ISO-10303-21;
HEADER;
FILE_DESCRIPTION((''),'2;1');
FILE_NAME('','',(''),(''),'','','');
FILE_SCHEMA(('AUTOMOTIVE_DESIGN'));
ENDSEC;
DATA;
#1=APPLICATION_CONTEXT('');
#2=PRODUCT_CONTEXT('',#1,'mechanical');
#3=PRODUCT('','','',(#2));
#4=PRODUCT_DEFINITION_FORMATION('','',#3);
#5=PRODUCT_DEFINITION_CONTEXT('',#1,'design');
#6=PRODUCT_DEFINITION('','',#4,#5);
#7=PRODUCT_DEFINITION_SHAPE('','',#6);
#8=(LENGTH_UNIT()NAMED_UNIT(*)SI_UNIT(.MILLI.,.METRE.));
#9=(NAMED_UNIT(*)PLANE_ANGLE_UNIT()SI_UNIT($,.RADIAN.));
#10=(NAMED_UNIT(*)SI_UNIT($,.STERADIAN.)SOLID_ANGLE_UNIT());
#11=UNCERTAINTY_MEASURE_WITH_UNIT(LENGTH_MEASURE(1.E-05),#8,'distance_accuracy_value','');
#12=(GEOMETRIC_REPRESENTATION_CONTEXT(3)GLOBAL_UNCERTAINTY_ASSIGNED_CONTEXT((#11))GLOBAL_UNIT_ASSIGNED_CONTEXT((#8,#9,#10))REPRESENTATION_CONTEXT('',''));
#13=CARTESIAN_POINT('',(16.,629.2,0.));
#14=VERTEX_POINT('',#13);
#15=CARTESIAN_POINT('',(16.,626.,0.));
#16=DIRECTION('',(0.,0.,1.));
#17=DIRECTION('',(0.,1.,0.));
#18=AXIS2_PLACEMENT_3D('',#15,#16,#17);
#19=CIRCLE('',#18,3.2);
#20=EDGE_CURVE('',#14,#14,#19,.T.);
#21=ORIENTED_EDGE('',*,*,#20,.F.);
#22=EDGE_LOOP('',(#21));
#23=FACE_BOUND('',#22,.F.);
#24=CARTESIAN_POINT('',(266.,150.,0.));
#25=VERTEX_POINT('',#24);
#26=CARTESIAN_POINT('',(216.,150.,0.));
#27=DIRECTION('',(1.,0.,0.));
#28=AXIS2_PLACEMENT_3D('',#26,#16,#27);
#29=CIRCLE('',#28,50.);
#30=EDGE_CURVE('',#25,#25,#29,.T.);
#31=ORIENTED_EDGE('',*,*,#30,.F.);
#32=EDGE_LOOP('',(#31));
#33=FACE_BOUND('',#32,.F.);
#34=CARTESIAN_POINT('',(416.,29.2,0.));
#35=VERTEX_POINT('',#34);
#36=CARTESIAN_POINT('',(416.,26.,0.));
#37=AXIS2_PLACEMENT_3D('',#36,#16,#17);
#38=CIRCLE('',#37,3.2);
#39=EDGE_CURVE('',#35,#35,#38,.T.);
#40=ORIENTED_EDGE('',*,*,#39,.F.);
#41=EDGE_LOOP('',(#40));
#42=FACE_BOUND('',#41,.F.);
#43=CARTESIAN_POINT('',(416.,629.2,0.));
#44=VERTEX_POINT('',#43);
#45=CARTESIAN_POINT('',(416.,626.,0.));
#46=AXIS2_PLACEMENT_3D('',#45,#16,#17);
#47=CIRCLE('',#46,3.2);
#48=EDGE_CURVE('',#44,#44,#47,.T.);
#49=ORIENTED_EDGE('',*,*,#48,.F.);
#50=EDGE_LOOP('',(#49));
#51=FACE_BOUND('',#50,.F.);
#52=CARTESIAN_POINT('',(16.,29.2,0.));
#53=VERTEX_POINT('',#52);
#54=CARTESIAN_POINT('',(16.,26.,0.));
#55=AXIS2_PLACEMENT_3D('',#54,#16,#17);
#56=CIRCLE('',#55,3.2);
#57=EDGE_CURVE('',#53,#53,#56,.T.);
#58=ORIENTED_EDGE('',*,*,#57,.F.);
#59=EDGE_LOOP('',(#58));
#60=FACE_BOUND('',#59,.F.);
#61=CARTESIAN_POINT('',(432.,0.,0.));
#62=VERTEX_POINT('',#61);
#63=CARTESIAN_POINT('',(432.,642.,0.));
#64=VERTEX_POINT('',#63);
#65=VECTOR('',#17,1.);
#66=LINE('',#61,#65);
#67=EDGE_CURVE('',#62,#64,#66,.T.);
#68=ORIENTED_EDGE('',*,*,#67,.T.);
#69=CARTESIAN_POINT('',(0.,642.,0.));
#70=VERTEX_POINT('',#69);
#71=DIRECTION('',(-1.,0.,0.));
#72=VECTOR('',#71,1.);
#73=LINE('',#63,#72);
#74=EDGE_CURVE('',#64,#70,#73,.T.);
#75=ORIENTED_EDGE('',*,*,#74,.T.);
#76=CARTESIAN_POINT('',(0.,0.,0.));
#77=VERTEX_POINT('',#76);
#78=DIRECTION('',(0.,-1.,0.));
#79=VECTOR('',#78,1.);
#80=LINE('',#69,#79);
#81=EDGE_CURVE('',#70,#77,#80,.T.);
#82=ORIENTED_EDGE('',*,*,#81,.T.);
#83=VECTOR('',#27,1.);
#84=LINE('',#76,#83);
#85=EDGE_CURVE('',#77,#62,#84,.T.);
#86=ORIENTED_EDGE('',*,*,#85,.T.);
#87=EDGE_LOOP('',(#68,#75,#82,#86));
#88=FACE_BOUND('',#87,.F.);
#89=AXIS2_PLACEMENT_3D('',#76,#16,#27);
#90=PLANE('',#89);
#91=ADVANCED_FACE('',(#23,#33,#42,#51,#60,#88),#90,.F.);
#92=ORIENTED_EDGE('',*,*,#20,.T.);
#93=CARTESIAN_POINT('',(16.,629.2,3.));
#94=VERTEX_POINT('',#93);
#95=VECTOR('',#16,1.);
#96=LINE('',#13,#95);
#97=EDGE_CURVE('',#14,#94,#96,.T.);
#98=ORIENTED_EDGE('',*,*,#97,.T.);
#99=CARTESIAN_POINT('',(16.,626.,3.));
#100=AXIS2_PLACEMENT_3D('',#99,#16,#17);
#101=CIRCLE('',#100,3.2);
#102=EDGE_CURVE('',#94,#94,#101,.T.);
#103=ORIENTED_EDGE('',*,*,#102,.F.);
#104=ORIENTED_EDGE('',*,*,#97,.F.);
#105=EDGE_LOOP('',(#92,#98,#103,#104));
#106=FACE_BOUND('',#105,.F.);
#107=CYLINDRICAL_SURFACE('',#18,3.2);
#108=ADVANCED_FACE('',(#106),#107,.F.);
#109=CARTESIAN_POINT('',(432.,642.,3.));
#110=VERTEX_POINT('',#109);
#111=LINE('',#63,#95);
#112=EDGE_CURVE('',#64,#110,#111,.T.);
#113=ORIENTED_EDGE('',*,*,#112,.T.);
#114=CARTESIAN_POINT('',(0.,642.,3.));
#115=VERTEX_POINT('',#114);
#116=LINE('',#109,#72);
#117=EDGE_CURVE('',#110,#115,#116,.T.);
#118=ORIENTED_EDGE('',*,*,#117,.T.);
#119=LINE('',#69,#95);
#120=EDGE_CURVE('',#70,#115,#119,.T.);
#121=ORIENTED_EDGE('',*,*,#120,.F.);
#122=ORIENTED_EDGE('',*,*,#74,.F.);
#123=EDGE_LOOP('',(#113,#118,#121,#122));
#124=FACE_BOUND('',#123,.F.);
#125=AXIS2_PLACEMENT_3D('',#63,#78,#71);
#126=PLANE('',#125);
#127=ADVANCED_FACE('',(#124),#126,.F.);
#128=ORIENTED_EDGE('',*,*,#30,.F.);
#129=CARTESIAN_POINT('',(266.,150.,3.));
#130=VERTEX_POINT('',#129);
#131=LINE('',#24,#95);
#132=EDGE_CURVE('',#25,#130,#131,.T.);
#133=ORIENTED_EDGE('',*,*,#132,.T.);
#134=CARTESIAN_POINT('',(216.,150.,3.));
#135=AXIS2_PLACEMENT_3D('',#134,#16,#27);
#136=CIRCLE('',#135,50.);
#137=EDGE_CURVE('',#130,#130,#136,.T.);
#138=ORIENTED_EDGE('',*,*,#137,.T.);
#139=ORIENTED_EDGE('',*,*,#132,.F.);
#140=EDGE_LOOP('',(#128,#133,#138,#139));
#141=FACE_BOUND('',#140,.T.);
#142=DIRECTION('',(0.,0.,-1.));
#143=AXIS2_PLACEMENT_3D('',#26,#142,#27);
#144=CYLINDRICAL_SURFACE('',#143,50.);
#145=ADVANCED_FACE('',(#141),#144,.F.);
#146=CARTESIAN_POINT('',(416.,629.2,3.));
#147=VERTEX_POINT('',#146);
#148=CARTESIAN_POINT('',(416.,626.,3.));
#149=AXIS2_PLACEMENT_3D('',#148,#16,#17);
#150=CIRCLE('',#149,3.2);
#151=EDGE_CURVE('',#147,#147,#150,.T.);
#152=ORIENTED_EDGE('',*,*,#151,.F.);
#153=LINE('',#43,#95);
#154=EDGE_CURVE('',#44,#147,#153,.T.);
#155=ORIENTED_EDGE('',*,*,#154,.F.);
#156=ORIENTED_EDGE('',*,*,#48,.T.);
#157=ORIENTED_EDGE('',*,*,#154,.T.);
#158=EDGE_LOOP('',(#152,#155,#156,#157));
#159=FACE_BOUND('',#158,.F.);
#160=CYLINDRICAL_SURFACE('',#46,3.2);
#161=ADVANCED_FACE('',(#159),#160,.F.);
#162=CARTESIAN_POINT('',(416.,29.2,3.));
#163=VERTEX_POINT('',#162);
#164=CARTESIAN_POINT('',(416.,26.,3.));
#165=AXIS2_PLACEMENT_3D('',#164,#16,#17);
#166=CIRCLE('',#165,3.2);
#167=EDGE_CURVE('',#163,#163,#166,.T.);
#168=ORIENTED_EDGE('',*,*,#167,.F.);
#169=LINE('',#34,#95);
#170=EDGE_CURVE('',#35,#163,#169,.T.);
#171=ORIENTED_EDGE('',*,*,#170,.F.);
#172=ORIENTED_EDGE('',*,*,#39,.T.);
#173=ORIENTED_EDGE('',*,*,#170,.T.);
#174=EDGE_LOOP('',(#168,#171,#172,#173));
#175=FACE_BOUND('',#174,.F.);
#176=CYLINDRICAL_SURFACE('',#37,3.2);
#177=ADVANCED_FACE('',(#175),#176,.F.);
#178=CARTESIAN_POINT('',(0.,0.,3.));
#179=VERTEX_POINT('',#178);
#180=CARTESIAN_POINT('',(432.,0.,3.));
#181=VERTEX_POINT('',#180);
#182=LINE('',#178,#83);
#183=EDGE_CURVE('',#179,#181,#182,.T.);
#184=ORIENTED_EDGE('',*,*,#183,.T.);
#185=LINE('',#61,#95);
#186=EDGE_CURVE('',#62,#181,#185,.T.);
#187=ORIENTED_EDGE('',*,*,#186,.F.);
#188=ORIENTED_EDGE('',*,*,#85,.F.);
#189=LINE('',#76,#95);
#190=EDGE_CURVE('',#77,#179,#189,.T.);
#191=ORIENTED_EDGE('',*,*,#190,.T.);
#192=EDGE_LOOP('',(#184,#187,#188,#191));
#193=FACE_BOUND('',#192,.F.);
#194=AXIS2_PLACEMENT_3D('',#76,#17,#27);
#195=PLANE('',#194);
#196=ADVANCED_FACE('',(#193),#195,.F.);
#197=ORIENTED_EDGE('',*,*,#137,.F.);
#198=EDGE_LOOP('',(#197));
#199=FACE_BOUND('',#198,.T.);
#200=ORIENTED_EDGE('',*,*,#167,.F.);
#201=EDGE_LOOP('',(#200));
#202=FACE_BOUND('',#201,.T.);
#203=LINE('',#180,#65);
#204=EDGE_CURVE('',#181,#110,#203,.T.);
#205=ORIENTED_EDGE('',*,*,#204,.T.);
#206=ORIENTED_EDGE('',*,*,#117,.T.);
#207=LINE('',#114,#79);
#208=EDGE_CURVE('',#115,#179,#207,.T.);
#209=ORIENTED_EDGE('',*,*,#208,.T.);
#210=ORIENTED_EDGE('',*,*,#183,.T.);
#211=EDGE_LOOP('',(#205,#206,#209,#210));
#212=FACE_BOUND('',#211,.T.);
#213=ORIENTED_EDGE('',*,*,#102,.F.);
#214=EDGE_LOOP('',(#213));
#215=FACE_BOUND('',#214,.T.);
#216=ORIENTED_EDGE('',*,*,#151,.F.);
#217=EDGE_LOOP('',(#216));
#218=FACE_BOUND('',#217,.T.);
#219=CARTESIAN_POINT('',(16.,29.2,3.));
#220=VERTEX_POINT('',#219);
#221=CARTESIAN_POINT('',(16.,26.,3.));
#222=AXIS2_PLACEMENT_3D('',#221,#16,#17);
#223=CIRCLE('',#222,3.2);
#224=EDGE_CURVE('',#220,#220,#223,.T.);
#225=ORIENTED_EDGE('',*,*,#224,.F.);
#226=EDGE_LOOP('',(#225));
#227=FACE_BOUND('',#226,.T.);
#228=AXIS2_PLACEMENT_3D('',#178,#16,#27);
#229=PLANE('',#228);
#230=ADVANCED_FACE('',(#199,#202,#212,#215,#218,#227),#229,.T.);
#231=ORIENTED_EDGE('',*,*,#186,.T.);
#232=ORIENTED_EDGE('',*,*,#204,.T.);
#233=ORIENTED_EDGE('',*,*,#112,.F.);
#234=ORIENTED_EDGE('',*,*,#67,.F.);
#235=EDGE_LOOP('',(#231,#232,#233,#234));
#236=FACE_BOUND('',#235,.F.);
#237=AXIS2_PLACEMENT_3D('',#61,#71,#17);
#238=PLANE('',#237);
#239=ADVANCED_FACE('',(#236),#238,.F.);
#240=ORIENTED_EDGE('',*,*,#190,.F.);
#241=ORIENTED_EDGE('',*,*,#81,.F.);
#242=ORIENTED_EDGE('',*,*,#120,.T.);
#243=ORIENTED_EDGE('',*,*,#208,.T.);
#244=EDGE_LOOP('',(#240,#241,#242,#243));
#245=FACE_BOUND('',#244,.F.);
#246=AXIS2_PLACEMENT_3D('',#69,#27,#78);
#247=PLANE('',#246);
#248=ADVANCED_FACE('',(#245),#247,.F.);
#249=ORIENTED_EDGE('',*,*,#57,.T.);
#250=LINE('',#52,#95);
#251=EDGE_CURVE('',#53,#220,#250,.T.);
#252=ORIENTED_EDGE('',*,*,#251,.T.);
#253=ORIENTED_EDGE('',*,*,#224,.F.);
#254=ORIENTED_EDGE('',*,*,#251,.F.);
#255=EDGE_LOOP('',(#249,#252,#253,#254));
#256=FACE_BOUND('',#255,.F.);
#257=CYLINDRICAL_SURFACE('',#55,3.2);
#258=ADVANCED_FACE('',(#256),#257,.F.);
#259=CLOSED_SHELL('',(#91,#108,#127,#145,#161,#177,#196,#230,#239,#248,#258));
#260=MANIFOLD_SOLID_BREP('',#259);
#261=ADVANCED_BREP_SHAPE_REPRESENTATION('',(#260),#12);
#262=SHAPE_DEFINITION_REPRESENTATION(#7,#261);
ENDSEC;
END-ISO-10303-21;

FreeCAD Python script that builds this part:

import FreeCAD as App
import Part
import Sketcher


def add_polygon(sketch, points):
    """Adds a closed chain of lines whose ends are joined by coincident constraints."""
    first, n = sketch.GeometryCount, len(points)
    for a, b in zip(points, points[1:] + points[:1]):
        sketch.addGeometry(Part.LineSegment(App.Vector(*a, 0), App.Vector(*b, 0)), False)
    for i in range(n):
        sketch.addConstraint(Sketcher.Constraint("Coincident", first + i, 2, first + (i + 1) % n, 1))

doc = App.newDocument("Part")
params = doc.addObject("Spreadsheet::Sheet", "Params")
for row, (alias, value) in enumerate([
    ("sketch1_diameter", "100 mm"),
    ("sketch1_width", "432 mm"),
    ("sketch1_height", "642 mm"),
    ("pad1_length", "3 mm"),
    ("sketch2_diameter", "6.4 mm"),
    ("hole_diameter", "6.4 mm"),
], start=1):
    params.set(f"A{row}", alias)
    params.set(f"B{row}", "=" + value)
    params.setAlias(f"B{row}", alias)

body = doc.addObject("PartDesign::Body", "Body")

sketch1 = doc.addObject("Sketcher::SketchObject", "Sketch")
body.addObject(sketch1)
sketch1.AttachmentSupport = (doc.XY_Plane, [""])
sketch1.MapMode = "FlatFace"
add_polygon(sketch1, [(0, 642), (0, 0), (432, 0), (432, 642)])
sketch1.addGeometry(Part.Circle(App.Vector(216, 150, 0), App.Vector(0, 0, 1), 50), False)
sketch1.addConstraint([
    Sketcher.Constraint("Vertical", 0),
    Sketcher.Constraint("Horizontal", 1),
    Sketcher.Constraint("Vertical", 2),
    Sketcher.Constraint("Horizontal", 3),
    Sketcher.Constraint("Coincident", 0, 2, -1, 1),
    Sketcher.Constraint("Diameter", 4, 100.0),
    Sketcher.Constraint("DistanceX", 1, 1, 1, 2, 432.0),
    Sketcher.Constraint("DistanceY", 0, 2, 0, 1, 642.0),
    Sketcher.Constraint("DistanceX", -1, 1, 4, 3, 216.0),
    Sketcher.Constraint("DistanceY", -1, 1, 4, 3, 150.0),
])
sketch1.setExpression("Constraints[9]", "Params.sketch1_diameter")
sketch1.setExpression("Constraints[10]", "Params.sketch1_width")
sketch1.setExpression("Constraints[11]", "Params.sketch1_height")
pad1 = doc.addObject("PartDesign::Pad", "Pad")
body.addObject(pad1)
pad1.Profile = sketch1
pad1.setExpression("Length", "Params.pad1_length")

sketch2 = doc.addObject("Sketcher::SketchObject", "Sketch001")
body.addObject(sketch2)
sketch2.AttachmentSupport = (doc.XY_Plane, [""])
sketch2.MapMode = "FlatFace"
sketch2.addGeometry([
    Part.Circle(App.Vector(16, 626, 0), App.Vector(0, 0, 1), 3.2),
    Part.Circle(App.Vector(416, 626, 0), App.Vector(0, 0, 1), 3.2),
    Part.Circle(App.Vector(416, 26, 0), App.Vector(0, 0, 1), 3.2),
    Part.Circle(App.Vector(16, 26, 0), App.Vector(0, 0, 1), 3.2),
], False)
sketch2.addConstraint([
    Sketcher.Constraint("Equal", 0, 1),
    Sketcher.Constraint("Equal", 1, 2),
    Sketcher.Constraint("Equal", 2, 3),
    Sketcher.Constraint("Horizontal", 0, 3, 1, 3),
    Sketcher.Constraint("Horizontal", 2, 3, 3, 3),
    Sketcher.Constraint("Vertical", 1, 3, 2, 3),
    Sketcher.Constraint("Vertical", 0, 3, 3, 3),
    Sketcher.Constraint("Diameter", 0, 6.4),
    Sketcher.Constraint("DistanceX", -1, 1, 0, 3, 16.0),
    Sketcher.Constraint("DistanceY", -1, 1, 0, 3, 626.0),
    Sketcher.Constraint("DistanceX", -1, 1, 1, 3, 416.0),
    Sketcher.Constraint("DistanceY", -1, 1, 2, 3, 26.0),
])
sketch2.setExpression("Constraints[7]", "Params.sketch2_diameter")
doc.recompute()
hole = doc.addObject("PartDesign::Hole", "Hole")
body.addObject(hole)
hole.Profile = sketch2
hole.ThreadType = "None"
hole.setExpression("Diameter", "Params.hole_diameter")
hole.DepthType = "ThroughAll"
hole.Reversed = True

doc.recompute()
